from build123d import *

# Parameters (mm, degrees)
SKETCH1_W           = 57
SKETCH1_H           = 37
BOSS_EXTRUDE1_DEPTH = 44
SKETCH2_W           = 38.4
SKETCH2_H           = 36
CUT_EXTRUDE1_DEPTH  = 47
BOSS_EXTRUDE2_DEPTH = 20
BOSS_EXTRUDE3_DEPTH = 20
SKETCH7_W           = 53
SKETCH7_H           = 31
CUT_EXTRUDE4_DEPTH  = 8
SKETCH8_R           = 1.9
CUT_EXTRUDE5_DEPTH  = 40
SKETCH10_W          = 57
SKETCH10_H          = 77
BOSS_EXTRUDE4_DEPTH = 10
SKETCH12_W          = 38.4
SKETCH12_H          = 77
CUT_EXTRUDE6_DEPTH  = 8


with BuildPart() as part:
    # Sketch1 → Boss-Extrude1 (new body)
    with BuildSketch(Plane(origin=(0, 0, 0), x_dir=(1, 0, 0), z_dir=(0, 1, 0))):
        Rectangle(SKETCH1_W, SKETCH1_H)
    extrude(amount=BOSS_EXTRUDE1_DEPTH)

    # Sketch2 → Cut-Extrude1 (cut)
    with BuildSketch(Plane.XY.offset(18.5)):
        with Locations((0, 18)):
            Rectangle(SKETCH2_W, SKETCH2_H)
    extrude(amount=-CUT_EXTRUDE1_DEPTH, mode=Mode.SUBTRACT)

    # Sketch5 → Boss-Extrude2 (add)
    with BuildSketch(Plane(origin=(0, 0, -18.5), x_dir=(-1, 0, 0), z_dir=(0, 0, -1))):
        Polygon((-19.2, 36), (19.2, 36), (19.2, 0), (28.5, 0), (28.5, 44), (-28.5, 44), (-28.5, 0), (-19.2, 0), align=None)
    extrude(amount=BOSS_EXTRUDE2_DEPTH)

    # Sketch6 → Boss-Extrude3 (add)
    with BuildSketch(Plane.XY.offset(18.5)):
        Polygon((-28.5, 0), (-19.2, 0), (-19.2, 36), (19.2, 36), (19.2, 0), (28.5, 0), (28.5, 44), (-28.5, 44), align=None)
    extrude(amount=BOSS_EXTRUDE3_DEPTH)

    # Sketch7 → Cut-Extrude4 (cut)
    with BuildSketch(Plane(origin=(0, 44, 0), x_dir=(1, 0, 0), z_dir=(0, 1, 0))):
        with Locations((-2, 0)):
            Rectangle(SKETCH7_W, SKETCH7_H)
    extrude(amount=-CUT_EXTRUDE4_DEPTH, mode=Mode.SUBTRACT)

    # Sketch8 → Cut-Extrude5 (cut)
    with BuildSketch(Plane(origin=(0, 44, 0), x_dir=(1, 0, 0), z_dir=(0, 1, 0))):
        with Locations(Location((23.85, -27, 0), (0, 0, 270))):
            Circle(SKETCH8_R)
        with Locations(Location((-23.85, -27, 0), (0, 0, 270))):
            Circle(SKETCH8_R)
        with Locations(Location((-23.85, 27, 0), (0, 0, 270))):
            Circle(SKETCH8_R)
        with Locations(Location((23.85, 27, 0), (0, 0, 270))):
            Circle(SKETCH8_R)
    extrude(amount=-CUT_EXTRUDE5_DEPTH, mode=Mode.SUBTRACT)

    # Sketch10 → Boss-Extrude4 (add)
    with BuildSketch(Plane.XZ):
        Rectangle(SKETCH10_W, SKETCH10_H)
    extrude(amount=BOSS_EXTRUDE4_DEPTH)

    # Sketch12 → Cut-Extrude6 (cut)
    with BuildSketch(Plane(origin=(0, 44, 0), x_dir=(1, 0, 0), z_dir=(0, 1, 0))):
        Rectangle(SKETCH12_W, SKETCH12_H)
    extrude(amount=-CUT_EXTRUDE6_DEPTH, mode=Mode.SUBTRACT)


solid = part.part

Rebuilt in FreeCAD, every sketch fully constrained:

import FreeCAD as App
import Part
import Sketcher
from FreeCAD import Vector
Q = App.Units.Quantity

doc = App.newDocument("Part")
body = doc.addObject("PartDesign::Body", "Body")

# Sketch on XZ plane
sketch1 = doc.addObject("Sketcher::SketchObject", "Sketch")
body.addObject(sketch1)
sketch1.AttachmentSupport = (doc.XZ_Plane, [""])
sketch1.MapMode = "FlatFace"
sketch1.addGeometry([
    Part.LineSegment(Vector(-28, -18, 0), Vector(-28, 18, 0)),
    Part.LineSegment(Vector(-28, 18, 0), Vector(28, 18, 0)),
    Part.LineSegment(Vector(28, 18, 0), Vector(28, -18, 0)),
    Part.LineSegment(Vector(28, -18, 0), Vector(-28, -18, 0)),
], False)
sketch1.addConstraint([
    Sketcher.Constraint("Coincident", 0, 2, 1, 1),
    Sketcher.Constraint("Coincident", 1, 2, 2, 1),
    Sketcher.Constraint("Coincident", 2, 2, 3, 1),
    Sketcher.Constraint("Coincident", 3, 2, 0, 1),
    Sketcher.Constraint("Vertical", 0),
    Sketcher.Constraint("Horizontal", 1),
    Sketcher.Constraint("Vertical", 2),
    Sketcher.Constraint("Horizontal", 3),
    Sketcher.Constraint("Symmetric", 0, 2, 2, 2, -1, 1),
    Sketcher.Constraint("DistanceX", 1, 1, 1, 2, Q("57 mm")),
    Sketcher.Constraint("DistanceY", 0, 1, 0, 2, Q("37 mm")),
])
pad1 = doc.addObject("PartDesign::Pad", "Pad")
body.addObject(pad1)
pad1.Profile = sketch1
pad1.Length = 44
pad1.Reversed = True

# Sketch on XY plane
sketch2 = doc.addObject("Sketcher::SketchObject", "Sketch001")
body.addObject(sketch2)
sketch2.AttachmentSupport = (doc.XY_Plane, [""])
sketch2.MapMode = "FlatFace"
sketch2.AttachmentOffset = App.Placement(Vector(0, 0, 18.5), App.Rotation())
sketch2.addGeometry([
    Part.LineSegment(Vector(-19, 36, 0), Vector(-19, 0, 0)),
    Part.LineSegment(Vector(-19, 0, 0), Vector(19, 0, 0)),
    Part.LineSegment(Vector(19, 0, 0), Vector(19, 36, 0)),
    Part.LineSegment(Vector(19, 36, 0), Vector(-19, 36, 0)),
], False)
sketch2.addConstraint([
    Sketcher.Constraint("Coincident", 0, 2, 1, 1),
    Sketcher.Constraint("Coincident", 1, 2, 2, 1),
    Sketcher.Constraint("Coincident", 2, 2, 3, 1),
    Sketcher.Constraint("Coincident", 3, 2, 0, 1),
    Sketcher.Constraint("Vertical", 0),
    Sketcher.Constraint("Horizontal", 1),
    Sketcher.Constraint("Vertical", 2),
    Sketcher.Constraint("Horizontal", 3),
    Sketcher.Constraint("Symmetric", 0, 2, 1, 2, -1, 1),
    Sketcher.Constraint("DistanceY", 0, 2, 0, 1, Q("36 mm")),
    Sketcher.Constraint("DistanceX", 1, 1, 1, 2, Q("38.4 mm")),
])
pocket1 = doc.addObject("PartDesign::Pocket", "Pocket")
body.addObject(pocket1)
pocket1.Profile = sketch2
pocket1.Length = 47

# Sketch on XY plane
sketch3 = doc.addObject("Sketcher::SketchObject", "Sketch002")
body.addObject(sketch3)
sketch3.AttachmentSupport = (doc.XY_Plane, [""])
sketch3.MapMode = "FlatFace"
sketch3.AttachmentOffset = App.Placement(Vector(0, 0, -18.5), App.Rotation())
sketch3.addGeometry([
    Part.LineSegment(Vector(19, 36, 0), Vector(-19, 36, 0)),  # 0
    Part.LineSegment(Vector(-19, 36, 0), Vector(-19, 0, 0)),  # 1
    Part.LineSegment(Vector(-19, 0, 0), Vector(-28, 0, 0)),  # 2
    Part.LineSegment(Vector(-28, 0, 0), Vector(-28, 44, 0)),  # 3
    Part.LineSegment(Vector(-28, 44, 0), Vector(28, 44, 0)),  # 4
    Part.LineSegment(Vector(28, 44, 0), Vector(28, 0, 0)),  # 5
    Part.LineSegment(Vector(28, 0, 0), Vector(19, 0, 0)),  # 6
    Part.LineSegment(Vector(19, 0, 0), Vector(19, 36, 0)),  # 7
], False)
sketch3.addConstraint([
    Sketcher.Constraint("Coincident", 0, 2, 1, 1),
    Sketcher.Constraint("Coincident", 1, 2, 2, 1),
    Sketcher.Constraint("Coincident", 2, 2, 3, 1),
    Sketcher.Constraint("Coincident", 3, 2, 4, 1),
    Sketcher.Constraint("Coincident", 4, 2, 5, 1),
    Sketcher.Constraint("Coincident", 5, 2, 6, 1),
    Sketcher.Constraint("Coincident", 6, 2, 7, 1),
    Sketcher.Constraint("Coincident", 7, 2, 0, 1),
    Sketcher.Constraint("Horizontal", 0),
    Sketcher.Constraint("Vertical", 1),
    Sketcher.Constraint("Horizontal", 2),
    Sketcher.Constraint("Vertical", 3),
    Sketcher.Constraint("Horizontal", 4),
    Sketcher.Constraint("Vertical", 5),
    Sketcher.Constraint("Horizontal", 6),
    Sketcher.Constraint("Vertical", 7),
    Sketcher.Constraint("Symmetric", 2, 2, 5, 2, -1, 1),
    Sketcher.Constraint("Symmetric", 1, 2, 6, 2, -2),
    Sketcher.Constraint("DistanceX", 4, 1, 4, 2, Q("57 mm")),
    Sketcher.Constraint("DistanceY", 1, 2, 1, 1, Q("36 mm")),
    Sketcher.Constraint("DistanceY", 3, 1, 3, 2, Q("44 mm")),
    Sketcher.Constraint("DistanceX", 0, 2, 0, 1, Q("38.4 mm")),
])
pad2 = doc.addObject("PartDesign::Pad", "Pad001")
body.addObject(pad2)
pad2.Profile = sketch3
pad2.Length = 20
pad2.Reversed = True

# Sketch on XY plane
sketch4 = doc.addObject("Sketcher::SketchObject", "Sketch003")
body.addObject(sketch4)
sketch4.AttachmentSupport = (doc.XY_Plane, [""])
sketch4.MapMode = "FlatFace"
sketch4.AttachmentOffset = App.Placement(Vector(0, 0, 18.5), App.Rotation())
sketch4.addGeometry([
    Part.LineSegment(Vector(-28, 0, 0), Vector(-19, 0, 0)),  # 0
    Part.LineSegment(Vector(-19, 0, 0), Vector(-19, 36, 0)),  # 1
    Part.LineSegment(Vector(-19, 36, 0), Vector(19, 36, 0)),  # 2
    Part.LineSegment(Vector(19, 36, 0), Vector(19, 0, 0)),  # 3
    Part.LineSegment(Vector(19, 0, 0), Vector(28, 0, 0)),  # 4
    Part.LineSegment(Vector(28, 0, 0), Vector(28, 44, 0)),  # 5
    Part.LineSegment(Vector(28, 44, 0), Vector(-28, 44, 0)),  # 6
    Part.LineSegment(Vector(-28, 44, 0), Vector(-28, 0, 0)),  # 7
], False)
sketch4.addConstraint([
    Sketcher.Constraint("Coincident", 0, 2, 1, 1),
    Sketcher.Constraint("Coincident", 1, 2, 2, 1),
    Sketcher.Constraint("Coincident", 2, 2, 3, 1),
    Sketcher.Constraint("Coincident", 3, 2, 4, 1),
    Sketcher.Constraint("Coincident", 4, 2, 5, 1),
    Sketcher.Constraint("Coincident", 5, 2, 6, 1),
    Sketcher.Constraint("Coincident", 6, 2, 7, 1),
    Sketcher.Constraint("Coincident", 7, 2, 0, 1),
    Sketcher.Constraint("Horizontal", 0),
    Sketcher.Constraint("Vertical", 1),
    Sketcher.Constraint("Horizontal", 2),
    Sketcher.Constraint("Vertical", 3),
    Sketcher.Constraint("Horizontal", 4),
    Sketcher.Constraint("Vertical", 5),
    Sketcher.Constraint("Horizontal", 6),
    Sketcher.Constraint("Vertical", 7),
    Sketcher.Constraint("Symmetric", 0, 2, 3, 2, -1, 1),
    Sketcher.Constraint("Symmetric", 4, 2, 7, 2, -2),
    Sketcher.Constraint("DistanceX", 6, 2, 6, 1, Q("57 mm")),
    Sketcher.Constraint("DistanceY", 1, 1, 1, 2, Q("36 mm")),
    Sketcher.Constraint("DistanceY", 5, 1, 5, 2, Q("44 mm")),
    Sketcher.Constraint("DistanceX", 0, 1, 0, 2, Q("9.3 mm")),
])
pad3 = doc.addObject("PartDesign::Pad", "Pad002")
body.addObject(pad3)
pad3.Profile = sketch4
pad3.Length = 20

# Sketch on XZ plane
sketch5 = doc.addObject("Sketcher::SketchObject", "Sketch004")
body.addObject(sketch5)
sketch5.AttachmentSupport = (doc.XZ_Plane, [""])
sketch5.MapMode = "FlatFace"
sketch5.AttachmentOffset = App.Placement(Vector(0, 0, -44), App.Rotation())
sketch5.addGeometry([
    Part.LineSegment(Vector(-28, -16, 0), Vector(-28, 16, 0)),
    Part.LineSegment(Vector(-28, 16, 0), Vector(24, 16, 0)),
    Part.LineSegment(Vector(24, 16, 0), Vector(24, -16, 0)),
    Part.LineSegment(Vector(24, -16, 0), Vector(-28, -16, 0)),
], False)
sketch5.addConstraint([
    Sketcher.Constraint("Coincident", 0, 2, 1, 1),
    Sketcher.Constraint("Coincident", 1, 2, 2, 1),
    Sketcher.Constraint("Coincident", 2, 2, 3, 1),
    Sketcher.Constraint("Coincident", 3, 2, 0, 1),
    Sketcher.Constraint("Vertical", 0),
    Sketcher.Constraint("Horizontal", 1),
    Sketcher.Constraint("Vertical", 2),
    Sketcher.Constraint("Horizontal", 3),
    Sketcher.Constraint("DistanceX", 1, 1, 1, 2, Q("53 mm")),
    Sketcher.Constraint("DistanceY", 0, 1, 0, 2, Q("31 mm")),
    Sketcher.Constraint("DistanceX", 0, 2, -1, 1, Q("28.5 mm")),
    Sketcher.Constraint("DistanceY", -1, 1, 0, 2, Q("15.5 mm")),
])
pocket2 = doc.addObject("PartDesign::Pocket", "Pocket001")
body.addObject(pocket2)
pocket2.Profile = sketch5
pocket2.Length = 8
pocket2.Reversed = True

# Sketch on XZ plane
sketch6 = doc.addObject("Sketcher::SketchObject", "Sketch005")
body.addObject(sketch6)
sketch6.AttachmentSupport = (doc.XZ_Plane, [""])
sketch6.MapMode = "FlatFace"
sketch6.AttachmentOffset = App.Placement(Vector(0, 0, -44), App.Rotation())
sketch6.addGeometry([
    Part.Circle(Vector(23.9, 27, 0), Vector(0, 0, 1), 1.9),
    Part.Circle(Vector(-23.9, 27, 0), Vector(0, 0, 1), 1.9),
    Part.Circle(Vector(-23.9, -27, 0), Vector(0, 0, 1), 1.9),
    Part.Circle(Vector(23.9, -27, 0), Vector(0, 0, 1), 1.9),
], False)
sketch6.addConstraint([
    Sketcher.Constraint("Equal", 0, 1),
    Sketcher.Constraint("Equal", 1, 2),
    Sketcher.Constraint("Equal", 2, 3),
    Sketcher.Constraint("Symmetric", 0, 3, 2, 3, -1, 1),
    Sketcher.Constraint("Symmetric", 1, 3, 3, 3, -1, 1),
    Sketcher.Constraint("Symmetric", 0, 3, 1, 3, -2),
    Sketcher.Constraint("Diameter", 0, Q("3.8 mm")),
    Sketcher.Constraint("DistanceY", -1, 1, 0, 3, Q("27 mm")),
    Sketcher.Constraint("DistanceX", 1, 3, 0, 3, Q("47.7 mm")),
])
pocket3 = doc.addObject("PartDesign::Pocket", "Pocket002")
body.addObject(pocket3)
pocket3.Profile = sketch6
pocket3.Length = 40
pocket3.Reversed = True

# Sketch on XZ plane
sketch7 = doc.addObject("Sketcher::SketchObject", "Sketch006")
body.addObject(sketch7)
sketch7.AttachmentSupport = (doc.XZ_Plane, [""])
sketch7.MapMode = "FlatFace"
sketch7.addGeometry([
    Part.LineSegment(Vector(-28, 38, 0), Vector(-28, -38, 0)),
    Part.LineSegment(Vector(-28, -38, 0), Vector(28, -38, 0)),
    Part.LineSegment(Vector(28, -38, 0), Vector(28, 38, 0)),
    Part.LineSegment(Vector(28, 38, 0), Vector(-28, 38, 0)),
], False)
sketch7.addConstraint([
    Sketcher.Constraint("Coincident", 0, 2, 1, 1),
    Sketcher.Constraint("Coincident", 1, 2, 2, 1),
    Sketcher.Constraint("Coincident", 2, 2, 3, 1),
    Sketcher.Constraint("Coincident", 3, 2, 0, 1),
    Sketcher.Constraint("Vertical", 0),
    Sketcher.Constraint("Horizontal", 1),
    Sketcher.Constraint("Vertical", 2),
    Sketcher.Constraint("Horizontal", 3),
    Sketcher.Constraint("Symmetric", 0, 2, 2, 2, -1, 1),
    Sketcher.Constraint("DistanceX", 1, 1, 1, 2, Q("57 mm")),
    Sketcher.Constraint("DistanceY", 0, 2, 0, 1, Q("77 mm")),
])
pad4 = doc.addObject("PartDesign::Pad", "Pad003")
body.addObject(pad4)
pad4.Profile = sketch7
pad4.Length = 10

# Sketch on XZ plane
sketch8 = doc.addObject("Sketcher::SketchObject", "Sketch007")
body.addObject(sketch8)
sketch8.AttachmentSupport = (doc.XZ_Plane, [""])
sketch8.MapMode = "FlatFace"
sketch8.AttachmentOffset = App.Placement(Vector(0, 0, -44), App.Rotation())
sketch8.addGeometry([
    Part.LineSegment(Vector(-19, -38, 0), Vector(-19, 38, 0)),
    Part.LineSegment(Vector(-19, 38, 0), Vector(19, 38, 0)),
    Part.LineSegment(Vector(19, 38, 0), Vector(19, -38, 0)),
    Part.LineSegment(Vector(19, -38, 0), Vector(-19, -38, 0)),
], False)
sketch8.addConstraint([
    Sketcher.Constraint("Coincident", 0, 2, 1, 1),
    Sketcher.Constraint("Coincident", 1, 2, 2, 1),
    Sketcher.Constraint("Coincident", 2, 2, 3, 1),
    Sketcher.Constraint("Coincident", 3, 2, 0, 1),
    Sketcher.Constraint("Vertical", 0),
    Sketcher.Constraint("Horizontal", 1),
    Sketcher.Constraint("Vertical", 2),
    Sketcher.Constraint("Horizontal", 3),
    Sketcher.Constraint("Symmetric", 0, 2, 2, 2, -1, 1),
    Sketcher.Constraint("DistanceY", 0, 1, 0, 2, Q("77 mm")),
    Sketcher.Constraint("DistanceX", 1, 1, 1, 2, Q("38.4 mm")),
])
pocket4 = doc.addObject("PartDesign::Pocket", "Pocket003")
body.addObject(pocket4)
pocket4.Profile = sketch8
pocket4.Length = 8
pocket4.Reversed = True

doc.recompute()
